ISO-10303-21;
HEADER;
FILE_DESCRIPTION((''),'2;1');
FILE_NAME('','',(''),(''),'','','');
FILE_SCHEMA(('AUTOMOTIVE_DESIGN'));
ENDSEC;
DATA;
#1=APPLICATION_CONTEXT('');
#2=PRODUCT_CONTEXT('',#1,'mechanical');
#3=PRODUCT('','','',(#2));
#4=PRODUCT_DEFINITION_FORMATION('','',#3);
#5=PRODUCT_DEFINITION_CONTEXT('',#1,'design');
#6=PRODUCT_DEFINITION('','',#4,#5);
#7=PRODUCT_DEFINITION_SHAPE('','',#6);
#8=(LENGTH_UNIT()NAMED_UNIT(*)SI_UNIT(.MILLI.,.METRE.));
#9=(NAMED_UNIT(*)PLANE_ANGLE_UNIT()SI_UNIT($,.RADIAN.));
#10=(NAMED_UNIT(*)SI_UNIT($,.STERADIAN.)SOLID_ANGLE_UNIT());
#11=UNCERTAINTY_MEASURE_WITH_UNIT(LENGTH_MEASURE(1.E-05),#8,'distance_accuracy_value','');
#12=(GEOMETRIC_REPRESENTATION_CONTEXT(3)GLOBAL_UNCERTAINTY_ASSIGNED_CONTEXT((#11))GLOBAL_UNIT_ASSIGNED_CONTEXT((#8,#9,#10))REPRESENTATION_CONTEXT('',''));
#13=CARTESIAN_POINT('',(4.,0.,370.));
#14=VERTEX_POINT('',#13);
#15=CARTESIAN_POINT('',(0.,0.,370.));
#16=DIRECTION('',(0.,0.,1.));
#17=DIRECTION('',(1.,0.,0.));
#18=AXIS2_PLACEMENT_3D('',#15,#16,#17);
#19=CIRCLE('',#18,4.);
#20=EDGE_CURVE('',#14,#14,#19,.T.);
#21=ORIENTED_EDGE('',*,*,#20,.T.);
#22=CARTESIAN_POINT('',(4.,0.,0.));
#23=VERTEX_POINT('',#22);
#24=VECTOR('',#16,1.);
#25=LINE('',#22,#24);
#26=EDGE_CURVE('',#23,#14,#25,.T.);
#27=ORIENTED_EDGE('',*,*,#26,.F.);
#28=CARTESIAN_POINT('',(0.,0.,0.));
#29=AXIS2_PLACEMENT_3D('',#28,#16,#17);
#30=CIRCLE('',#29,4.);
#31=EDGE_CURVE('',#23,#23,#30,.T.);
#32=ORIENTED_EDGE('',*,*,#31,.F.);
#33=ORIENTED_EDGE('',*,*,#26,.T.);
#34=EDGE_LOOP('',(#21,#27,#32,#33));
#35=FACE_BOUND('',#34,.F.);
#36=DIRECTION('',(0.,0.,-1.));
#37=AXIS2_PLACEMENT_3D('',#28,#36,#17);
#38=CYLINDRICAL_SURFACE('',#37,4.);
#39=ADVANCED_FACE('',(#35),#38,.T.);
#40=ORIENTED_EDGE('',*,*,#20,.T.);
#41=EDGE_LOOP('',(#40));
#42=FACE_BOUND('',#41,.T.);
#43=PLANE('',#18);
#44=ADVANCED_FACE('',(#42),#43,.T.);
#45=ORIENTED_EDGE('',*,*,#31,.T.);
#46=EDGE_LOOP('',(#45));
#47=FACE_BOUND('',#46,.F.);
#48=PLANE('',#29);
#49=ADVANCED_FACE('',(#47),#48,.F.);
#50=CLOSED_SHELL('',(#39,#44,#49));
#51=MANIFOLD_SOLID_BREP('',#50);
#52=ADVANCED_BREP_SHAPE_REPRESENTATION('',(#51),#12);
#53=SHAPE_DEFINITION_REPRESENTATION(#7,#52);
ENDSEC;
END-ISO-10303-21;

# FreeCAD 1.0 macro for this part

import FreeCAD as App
import Part
import Sketcher

doc = App.newDocument("Part")
params = doc.addObject("Spreadsheet::Sheet", "Params")
for row, (alias, value) in enumerate([
    ("sketch1_diameter", "8 mm"),
    ("pad1_length", "370 mm"),
], start=1):
    params.set(f"A{row}", alias)
    params.set(f"B{row}", "=" + value)
    params.setAlias(f"B{row}", alias)

body = doc.addObject("PartDesign::Body", "Body")

sketch1 = doc.addObject("Sketcher::SketchObject", "Sketch")
body.addObject(sketch1)
sketch1.AttachmentSupport = (doc.XY_Plane, [""])
sketch1.MapMode = "FlatFace"
sketch1.addGeometry(Part.Circle(App.Vector(0, 0, 0), App.Vector(0, 0, 1), 4), False)
sketch1.addConstraint([
    Sketcher.Constraint("Coincident", 0, 3, -1, 1),
    Sketcher.Constraint("Diameter", 0, 8.0),
])
sketch1.setExpression("Constraints[1]", "Params.sketch1_diameter")
pad1 = doc.addObject("PartDesign::Pad", "Pad")
body.addObject(pad1)
pad1.Profile = sketch1
pad1.setExpression("Length", "Params.pad1_length")

doc.recompute()
